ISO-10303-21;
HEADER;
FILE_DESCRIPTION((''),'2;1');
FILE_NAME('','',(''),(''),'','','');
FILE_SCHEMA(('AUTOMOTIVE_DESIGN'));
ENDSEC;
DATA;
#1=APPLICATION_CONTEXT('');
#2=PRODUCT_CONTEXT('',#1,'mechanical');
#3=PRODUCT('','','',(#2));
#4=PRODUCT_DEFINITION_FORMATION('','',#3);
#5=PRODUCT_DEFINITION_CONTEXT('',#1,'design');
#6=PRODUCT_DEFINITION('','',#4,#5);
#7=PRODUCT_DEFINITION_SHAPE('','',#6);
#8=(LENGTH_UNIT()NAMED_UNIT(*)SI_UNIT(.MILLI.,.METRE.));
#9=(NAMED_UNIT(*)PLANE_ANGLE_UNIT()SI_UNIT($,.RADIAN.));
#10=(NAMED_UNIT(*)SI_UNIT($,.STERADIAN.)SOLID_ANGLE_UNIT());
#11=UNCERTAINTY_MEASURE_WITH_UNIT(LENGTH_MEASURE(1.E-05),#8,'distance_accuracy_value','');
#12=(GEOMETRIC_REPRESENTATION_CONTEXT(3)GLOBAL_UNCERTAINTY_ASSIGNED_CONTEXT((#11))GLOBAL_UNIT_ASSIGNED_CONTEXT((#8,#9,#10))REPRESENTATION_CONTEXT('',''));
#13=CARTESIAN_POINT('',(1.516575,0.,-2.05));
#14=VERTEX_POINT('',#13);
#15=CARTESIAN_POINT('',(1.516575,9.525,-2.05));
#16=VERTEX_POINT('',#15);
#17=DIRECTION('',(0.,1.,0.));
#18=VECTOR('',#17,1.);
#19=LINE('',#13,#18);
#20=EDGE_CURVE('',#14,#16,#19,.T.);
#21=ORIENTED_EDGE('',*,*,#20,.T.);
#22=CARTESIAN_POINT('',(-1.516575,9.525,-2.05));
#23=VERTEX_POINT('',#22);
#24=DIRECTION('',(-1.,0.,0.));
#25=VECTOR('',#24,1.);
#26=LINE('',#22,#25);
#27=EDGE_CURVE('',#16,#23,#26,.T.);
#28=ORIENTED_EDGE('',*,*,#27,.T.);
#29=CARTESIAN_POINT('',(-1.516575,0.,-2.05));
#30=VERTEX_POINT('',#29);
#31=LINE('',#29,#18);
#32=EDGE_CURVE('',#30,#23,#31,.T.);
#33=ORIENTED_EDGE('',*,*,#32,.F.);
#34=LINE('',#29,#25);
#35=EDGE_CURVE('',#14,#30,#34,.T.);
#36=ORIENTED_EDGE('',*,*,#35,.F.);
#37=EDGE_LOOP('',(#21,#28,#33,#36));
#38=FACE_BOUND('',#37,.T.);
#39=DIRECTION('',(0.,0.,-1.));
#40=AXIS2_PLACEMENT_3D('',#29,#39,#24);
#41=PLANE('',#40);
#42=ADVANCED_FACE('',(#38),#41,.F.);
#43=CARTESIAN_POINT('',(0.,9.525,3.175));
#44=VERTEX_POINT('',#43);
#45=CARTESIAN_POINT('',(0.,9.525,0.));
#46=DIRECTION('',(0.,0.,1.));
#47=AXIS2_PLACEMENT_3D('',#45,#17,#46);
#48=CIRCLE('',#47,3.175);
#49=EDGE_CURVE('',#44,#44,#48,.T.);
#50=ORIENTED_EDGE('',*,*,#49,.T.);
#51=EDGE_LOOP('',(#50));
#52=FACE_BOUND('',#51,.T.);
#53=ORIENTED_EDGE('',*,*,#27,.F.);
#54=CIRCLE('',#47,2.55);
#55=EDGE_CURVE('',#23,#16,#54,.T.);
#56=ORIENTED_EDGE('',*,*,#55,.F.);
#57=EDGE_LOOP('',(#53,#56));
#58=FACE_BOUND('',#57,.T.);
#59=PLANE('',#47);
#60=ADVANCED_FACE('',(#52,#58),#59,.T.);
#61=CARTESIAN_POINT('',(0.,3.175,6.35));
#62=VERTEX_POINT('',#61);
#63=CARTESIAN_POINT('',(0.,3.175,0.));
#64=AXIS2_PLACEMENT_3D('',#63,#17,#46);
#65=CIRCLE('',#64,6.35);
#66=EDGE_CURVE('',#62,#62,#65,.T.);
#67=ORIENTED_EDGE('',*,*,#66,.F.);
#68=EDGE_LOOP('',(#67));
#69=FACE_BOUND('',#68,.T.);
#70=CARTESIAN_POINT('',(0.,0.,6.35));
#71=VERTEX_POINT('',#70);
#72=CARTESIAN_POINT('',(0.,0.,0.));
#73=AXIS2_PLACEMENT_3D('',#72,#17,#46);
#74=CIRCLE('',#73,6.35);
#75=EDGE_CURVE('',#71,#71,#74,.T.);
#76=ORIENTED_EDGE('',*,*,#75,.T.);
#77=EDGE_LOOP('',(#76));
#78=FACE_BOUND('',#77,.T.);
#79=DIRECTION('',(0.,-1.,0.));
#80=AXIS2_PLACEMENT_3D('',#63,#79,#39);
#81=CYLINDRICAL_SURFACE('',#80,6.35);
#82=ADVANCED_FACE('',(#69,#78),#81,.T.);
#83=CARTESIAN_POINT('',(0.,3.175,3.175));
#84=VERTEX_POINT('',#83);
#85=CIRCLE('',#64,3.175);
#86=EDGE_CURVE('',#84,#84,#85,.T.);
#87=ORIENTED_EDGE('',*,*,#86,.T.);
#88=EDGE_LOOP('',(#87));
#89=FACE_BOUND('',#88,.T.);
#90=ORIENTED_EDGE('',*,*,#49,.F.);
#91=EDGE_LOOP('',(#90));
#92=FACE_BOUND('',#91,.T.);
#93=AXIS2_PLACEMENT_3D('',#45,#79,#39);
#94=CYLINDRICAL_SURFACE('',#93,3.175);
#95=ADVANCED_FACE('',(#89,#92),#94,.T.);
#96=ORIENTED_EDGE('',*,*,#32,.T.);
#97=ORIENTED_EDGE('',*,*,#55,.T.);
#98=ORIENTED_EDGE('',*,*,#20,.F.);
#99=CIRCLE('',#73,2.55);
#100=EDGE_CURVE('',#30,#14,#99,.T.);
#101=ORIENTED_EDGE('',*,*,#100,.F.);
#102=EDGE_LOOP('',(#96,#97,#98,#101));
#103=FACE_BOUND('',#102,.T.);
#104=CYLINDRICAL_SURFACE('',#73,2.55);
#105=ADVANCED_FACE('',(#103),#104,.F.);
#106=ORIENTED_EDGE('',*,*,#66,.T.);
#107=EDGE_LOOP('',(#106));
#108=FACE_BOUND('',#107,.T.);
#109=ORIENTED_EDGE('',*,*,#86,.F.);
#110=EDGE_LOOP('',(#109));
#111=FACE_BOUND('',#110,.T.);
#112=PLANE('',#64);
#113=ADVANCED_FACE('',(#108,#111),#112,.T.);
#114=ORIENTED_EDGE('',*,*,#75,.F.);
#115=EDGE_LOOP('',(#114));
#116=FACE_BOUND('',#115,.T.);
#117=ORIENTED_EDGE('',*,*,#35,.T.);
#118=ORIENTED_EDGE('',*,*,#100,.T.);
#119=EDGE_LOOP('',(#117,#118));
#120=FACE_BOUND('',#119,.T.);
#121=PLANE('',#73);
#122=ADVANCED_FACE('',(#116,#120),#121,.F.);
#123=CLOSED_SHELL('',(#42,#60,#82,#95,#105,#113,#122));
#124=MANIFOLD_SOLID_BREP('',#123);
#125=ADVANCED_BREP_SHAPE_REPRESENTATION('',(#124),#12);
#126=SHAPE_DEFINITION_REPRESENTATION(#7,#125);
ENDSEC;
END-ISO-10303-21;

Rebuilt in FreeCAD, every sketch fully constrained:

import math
import FreeCAD as App
import Part
import Sketcher
Q = App.Units.Quantity

doc = App.newDocument("Part")
body = doc.addObject("PartDesign::Body", "Body")

sketch1 = body.newObject("Sketcher::SketchObject", "Sketch")
sketch1.AttachmentSupport = (doc.getObject("XZ_Plane"), [""])
sketch1.MapMode = "FlatFace"
sketch1.addGeometry(Part.Circle(App.Vector(0, 0, 0), App.Vector(0, 0, 1), 6), False)
sketch1.addConstraint([
    Sketcher.Constraint("Coincident", 0, 3, -1, 1),
    Sketcher.Constraint("Diameter", 0, Q("0.5 in")),
])
pad1 = body.newObject("PartDesign::Pad", "Pad")
pad1.Profile = sketch1
pad1.Length = Q("0.125 in")
pad1.Reversed = True

sketch2 = body.newObject("Sketcher::SketchObject", "Sketch001")
sketch2.AttachmentSupport = (doc.getObject("XZ_Plane"), [""])
sketch2.MapMode = "FlatFace"
sketch2.AttachmentOffset = App.Placement(App.Vector(0, 0, -0.125 * 25.4), App.Rotation())
sketch2.addGeometry(Part.Circle(App.Vector(0, 0, 0), App.Vector(0, 0, 1), 3.2), False)
sketch2.addConstraint([
    Sketcher.Constraint("Coincident", 0, 3, -1, 1),
    Sketcher.Constraint("Diameter", 0, Q("0.25 in")),
])
pad2 = body.newObject("PartDesign::Pad", "Pad001")
pad2.Profile = sketch2
pad2.Length = Q("0.25 in")
pad2.Reversed = True

sketch3 = body.newObject("Sketcher::SketchObject", "Sketch002")
sketch3.AttachmentSupport = (doc.getObject("XZ_Plane"), [""])
sketch3.MapMode = "FlatFace"
sketch3.AttachmentOffset = App.Placement(App.Vector(0, 0, -0.375 * 25.4), App.Rotation())
sketch3.addGeometry([
    Part.LineSegment(App.Vector(1.5, -2, 0), App.Vector(-1.5, -2, 0)),
    Part.ArcOfCircle(Part.Circle(App.Vector(0, 0, 0), App.Vector(0, 0, 1), 2.5), math.radians(-54), math.radians(234)),
], False)
sketch3.addConstraint([
    Sketcher.Constraint("Coincident", 0, 1, 1, 1),
    Sketcher.Constraint("Coincident", 1, 2, 0, 2),
    Sketcher.Constraint("Horizontal", 0),
    Sketcher.Constraint("Coincident", 1, 3, -1, 1),
    Sketcher.Constraint("Radius", 1, 2.55),
    Sketcher.Constraint("DistanceX", 0, 2, 0, 1, 3.03315),
])
pocket1 = body.newObject("PartDesign::Pocket", "Pocket")
pocket1.Profile = sketch3
pocket1.Type = "ThroughAll"
pocket1.Reversed = True

doc.recompute()
